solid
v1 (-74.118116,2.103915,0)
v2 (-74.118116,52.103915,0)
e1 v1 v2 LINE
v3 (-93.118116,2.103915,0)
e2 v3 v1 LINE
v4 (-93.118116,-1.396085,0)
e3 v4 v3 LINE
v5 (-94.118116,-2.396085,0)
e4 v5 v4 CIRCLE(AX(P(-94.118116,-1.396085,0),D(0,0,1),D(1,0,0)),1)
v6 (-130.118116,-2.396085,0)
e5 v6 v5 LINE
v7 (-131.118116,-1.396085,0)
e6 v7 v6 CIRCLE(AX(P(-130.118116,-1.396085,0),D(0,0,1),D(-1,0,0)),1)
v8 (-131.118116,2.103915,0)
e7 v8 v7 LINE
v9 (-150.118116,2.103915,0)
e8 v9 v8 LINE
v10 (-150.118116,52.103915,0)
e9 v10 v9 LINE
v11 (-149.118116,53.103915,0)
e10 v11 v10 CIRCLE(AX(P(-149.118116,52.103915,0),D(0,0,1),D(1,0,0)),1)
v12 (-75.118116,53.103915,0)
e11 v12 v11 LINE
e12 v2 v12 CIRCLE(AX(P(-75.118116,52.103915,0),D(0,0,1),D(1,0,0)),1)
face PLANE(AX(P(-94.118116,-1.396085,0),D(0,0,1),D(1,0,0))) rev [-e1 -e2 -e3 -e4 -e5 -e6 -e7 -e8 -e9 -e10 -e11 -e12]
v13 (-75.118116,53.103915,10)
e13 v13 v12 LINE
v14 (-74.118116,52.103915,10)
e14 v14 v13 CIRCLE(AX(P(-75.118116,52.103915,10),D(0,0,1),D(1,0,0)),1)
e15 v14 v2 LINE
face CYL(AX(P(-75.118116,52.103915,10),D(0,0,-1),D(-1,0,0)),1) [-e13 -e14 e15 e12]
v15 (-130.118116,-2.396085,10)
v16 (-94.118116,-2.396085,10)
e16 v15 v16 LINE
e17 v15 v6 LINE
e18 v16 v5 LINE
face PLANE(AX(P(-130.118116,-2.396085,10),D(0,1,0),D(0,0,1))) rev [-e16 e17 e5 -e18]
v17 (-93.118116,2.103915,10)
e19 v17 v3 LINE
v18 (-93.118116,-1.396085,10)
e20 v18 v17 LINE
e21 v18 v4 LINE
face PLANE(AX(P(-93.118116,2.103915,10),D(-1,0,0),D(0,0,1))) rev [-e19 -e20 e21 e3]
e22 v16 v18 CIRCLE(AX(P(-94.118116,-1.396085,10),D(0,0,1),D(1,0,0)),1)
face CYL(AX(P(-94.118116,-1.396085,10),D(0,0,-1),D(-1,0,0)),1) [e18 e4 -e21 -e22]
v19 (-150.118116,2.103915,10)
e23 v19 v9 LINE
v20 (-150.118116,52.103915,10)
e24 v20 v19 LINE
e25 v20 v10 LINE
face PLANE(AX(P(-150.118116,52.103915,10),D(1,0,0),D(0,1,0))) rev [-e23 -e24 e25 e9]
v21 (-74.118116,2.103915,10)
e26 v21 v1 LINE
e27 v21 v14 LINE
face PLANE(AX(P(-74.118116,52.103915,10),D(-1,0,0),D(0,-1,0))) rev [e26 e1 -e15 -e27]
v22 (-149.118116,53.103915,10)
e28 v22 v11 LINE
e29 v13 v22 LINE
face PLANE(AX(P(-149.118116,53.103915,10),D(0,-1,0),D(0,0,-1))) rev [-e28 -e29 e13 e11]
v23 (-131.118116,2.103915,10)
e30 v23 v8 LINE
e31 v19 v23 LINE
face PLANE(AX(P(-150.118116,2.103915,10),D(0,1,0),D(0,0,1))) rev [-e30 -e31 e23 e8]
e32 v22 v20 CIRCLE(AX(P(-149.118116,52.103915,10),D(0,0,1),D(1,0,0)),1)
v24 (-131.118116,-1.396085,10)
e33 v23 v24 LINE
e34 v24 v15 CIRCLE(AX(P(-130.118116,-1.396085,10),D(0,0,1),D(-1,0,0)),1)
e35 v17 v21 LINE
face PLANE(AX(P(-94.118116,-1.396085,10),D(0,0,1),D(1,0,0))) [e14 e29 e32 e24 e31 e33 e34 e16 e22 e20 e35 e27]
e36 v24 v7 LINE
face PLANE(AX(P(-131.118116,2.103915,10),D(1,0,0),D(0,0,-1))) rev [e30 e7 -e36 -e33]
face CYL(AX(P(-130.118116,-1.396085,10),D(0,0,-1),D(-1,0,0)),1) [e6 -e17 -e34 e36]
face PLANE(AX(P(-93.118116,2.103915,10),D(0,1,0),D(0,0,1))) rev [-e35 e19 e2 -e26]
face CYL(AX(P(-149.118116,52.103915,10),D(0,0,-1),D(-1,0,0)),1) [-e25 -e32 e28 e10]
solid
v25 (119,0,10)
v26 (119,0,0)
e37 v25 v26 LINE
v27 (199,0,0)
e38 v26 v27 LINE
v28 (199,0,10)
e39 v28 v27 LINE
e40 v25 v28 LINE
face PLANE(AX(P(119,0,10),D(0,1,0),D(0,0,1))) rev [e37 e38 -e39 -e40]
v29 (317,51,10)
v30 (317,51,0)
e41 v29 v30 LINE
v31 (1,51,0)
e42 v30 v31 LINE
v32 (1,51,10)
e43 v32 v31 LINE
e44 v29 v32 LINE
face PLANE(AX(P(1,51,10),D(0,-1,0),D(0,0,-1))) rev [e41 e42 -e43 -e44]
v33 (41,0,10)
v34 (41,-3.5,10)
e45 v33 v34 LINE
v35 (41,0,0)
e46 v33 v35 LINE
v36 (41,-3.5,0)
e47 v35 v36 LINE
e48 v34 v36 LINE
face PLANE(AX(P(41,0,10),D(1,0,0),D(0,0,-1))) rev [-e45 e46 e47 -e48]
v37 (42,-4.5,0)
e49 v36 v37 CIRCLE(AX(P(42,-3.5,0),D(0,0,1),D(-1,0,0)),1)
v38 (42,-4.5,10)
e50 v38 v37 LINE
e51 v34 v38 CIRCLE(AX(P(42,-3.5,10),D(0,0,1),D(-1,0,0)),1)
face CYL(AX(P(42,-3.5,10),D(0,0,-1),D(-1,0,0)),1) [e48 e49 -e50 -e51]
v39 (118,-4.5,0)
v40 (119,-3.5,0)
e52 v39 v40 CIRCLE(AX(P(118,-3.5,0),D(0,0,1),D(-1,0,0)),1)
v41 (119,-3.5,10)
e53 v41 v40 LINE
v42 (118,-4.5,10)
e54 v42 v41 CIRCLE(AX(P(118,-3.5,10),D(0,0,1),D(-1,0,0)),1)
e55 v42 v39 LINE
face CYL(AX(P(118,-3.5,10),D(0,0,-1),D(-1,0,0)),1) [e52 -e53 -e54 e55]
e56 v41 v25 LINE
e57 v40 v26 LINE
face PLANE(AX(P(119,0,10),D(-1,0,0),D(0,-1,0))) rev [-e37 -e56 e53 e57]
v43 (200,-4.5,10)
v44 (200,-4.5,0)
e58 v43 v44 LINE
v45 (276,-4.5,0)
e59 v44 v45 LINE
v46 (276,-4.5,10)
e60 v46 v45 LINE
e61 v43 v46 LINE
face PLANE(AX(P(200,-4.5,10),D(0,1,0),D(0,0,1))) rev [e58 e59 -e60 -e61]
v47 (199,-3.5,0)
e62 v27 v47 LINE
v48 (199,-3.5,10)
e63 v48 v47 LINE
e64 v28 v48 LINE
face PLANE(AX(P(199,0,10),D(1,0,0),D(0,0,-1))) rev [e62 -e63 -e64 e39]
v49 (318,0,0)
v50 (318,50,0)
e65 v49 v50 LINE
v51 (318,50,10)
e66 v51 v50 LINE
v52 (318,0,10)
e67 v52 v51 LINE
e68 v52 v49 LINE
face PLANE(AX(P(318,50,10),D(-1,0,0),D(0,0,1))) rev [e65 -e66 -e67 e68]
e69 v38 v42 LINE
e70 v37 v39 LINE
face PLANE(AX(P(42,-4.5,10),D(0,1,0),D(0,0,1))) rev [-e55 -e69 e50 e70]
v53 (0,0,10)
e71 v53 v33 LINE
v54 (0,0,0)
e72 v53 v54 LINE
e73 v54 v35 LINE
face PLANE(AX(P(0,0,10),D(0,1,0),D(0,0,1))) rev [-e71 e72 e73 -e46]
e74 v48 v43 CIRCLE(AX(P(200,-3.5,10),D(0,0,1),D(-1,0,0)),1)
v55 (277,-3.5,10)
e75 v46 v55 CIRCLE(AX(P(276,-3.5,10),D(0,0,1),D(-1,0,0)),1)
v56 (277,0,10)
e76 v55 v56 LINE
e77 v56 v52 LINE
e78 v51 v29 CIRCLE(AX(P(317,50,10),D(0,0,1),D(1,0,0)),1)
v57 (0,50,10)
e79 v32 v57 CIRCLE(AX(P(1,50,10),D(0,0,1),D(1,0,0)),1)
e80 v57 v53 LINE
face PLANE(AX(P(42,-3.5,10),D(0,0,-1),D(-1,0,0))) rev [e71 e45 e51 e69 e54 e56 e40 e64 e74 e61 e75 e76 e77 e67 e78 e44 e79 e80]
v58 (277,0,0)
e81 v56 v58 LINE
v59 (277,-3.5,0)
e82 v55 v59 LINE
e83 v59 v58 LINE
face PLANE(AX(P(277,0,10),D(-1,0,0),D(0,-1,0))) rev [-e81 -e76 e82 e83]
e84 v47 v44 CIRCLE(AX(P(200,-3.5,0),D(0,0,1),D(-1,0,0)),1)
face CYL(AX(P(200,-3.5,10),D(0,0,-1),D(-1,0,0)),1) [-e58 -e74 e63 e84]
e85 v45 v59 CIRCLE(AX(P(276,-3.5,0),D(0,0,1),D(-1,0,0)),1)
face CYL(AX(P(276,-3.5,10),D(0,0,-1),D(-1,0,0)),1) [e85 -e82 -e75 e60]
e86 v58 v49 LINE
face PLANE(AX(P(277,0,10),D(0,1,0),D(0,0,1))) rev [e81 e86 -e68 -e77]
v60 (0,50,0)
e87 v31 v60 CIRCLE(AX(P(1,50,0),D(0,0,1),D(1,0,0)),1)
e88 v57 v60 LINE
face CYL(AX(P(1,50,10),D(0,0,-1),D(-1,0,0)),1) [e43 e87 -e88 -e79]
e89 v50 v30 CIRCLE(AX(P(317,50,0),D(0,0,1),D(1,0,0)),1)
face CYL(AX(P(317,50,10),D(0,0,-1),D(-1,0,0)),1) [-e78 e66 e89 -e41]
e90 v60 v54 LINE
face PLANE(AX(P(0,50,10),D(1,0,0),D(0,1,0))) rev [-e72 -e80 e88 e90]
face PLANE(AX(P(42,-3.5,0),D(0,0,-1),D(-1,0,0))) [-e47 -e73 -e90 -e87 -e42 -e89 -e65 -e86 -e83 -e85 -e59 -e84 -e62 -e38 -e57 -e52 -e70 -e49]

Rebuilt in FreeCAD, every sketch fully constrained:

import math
import FreeCAD as App
import Part
import Sketcher

V = App.Vector

doc = App.newDocument("Part")
params = doc.addObject("Spreadsheet::Sheet", "Params")
for row, (alias, value) in enumerate([
    ("sketch1_radius", "1 mm"),
    ("sketch1_width", "19 mm"),
    ("sketch1_width2", "74 mm"),
    ("sketch1_height", "50 mm"),
    ("sketch1_height2", "3.5 mm"),
    ("pad1_length", "10 mm"),
    ("sketch2_radius", "1 mm"),
    ("sketch2_width", "80 mm"),
    ("sketch2_width2", "76 mm"),
    ("sketch2_width3", "41 mm"),
    ("sketch2_height", "50 mm"),
    ("pad2_length", "10 mm"),
], start=1):
    params.set(f"A{row}", alias)
    params.set(f"B{row}", "=" + value)
    params.setAlias(f"B{row}", alias)

body = doc.addObject("PartDesign::Body", "Body")

sketch1 = body.newObject("Sketcher::SketchObject", "Sketch")
sketch1.AttachmentSupport = (doc.getObject("XY_Plane"), [""])
sketch1.MapMode = "FlatFace"
sketch1.addGeometry([
    Part.LineSegment(V(-93.1, 2.1, 0), V(-74.1, 2.1, 0)),
    Part.LineSegment(V(-74.1, 2.1, 0), V(-74.1, 52.1, 0)),
    Part.ArcOfCircle(Part.Circle(V(-75.1, 52.1, 0), V(0, 0, 1), 1), math.radians(0), math.radians(90)),
    Part.LineSegment(V(-75.1, 53.1, 0), V(-149.1, 53.1, 0)),
    Part.ArcOfCircle(Part.Circle(V(-149.1, 52.1, 0), V(0, 0, 1), 1), math.radians(90), math.radians(180)),
    Part.LineSegment(V(-150.1, 52.1, 0), V(-150.1, 2.1, 0)),
    Part.LineSegment(V(-150.1, 2.1, 0), V(-131.1, 2.1, 0)),
    Part.LineSegment(V(-131.1, 2.1, 0), V(-131.1, -1.4, 0)),
    Part.ArcOfCircle(Part.Circle(V(-130.1, -1.4, 0), V(0, 0, 1), 1), math.radians(-180), math.radians(-90)),
    Part.LineSegment(V(-130.1, -2.4, 0), V(-94.1, -2.4, 0)),
    Part.ArcOfCircle(Part.Circle(V(-94.1, -1.4, 0), V(0, 0, 1), 1), math.radians(-90), math.radians(0)),
    Part.LineSegment(V(-93.1, -1.4, 0), V(-93.1, 2.1, 0)),
], False)
sketch1.addConstraint([
    Sketcher.Constraint("Coincident", 0, 2, 1, 1),
    Sketcher.Constraint("Tangent", 1, 2, 2, 1),
    Sketcher.Constraint("Tangent", 2, 2, 3, 1),
    Sketcher.Constraint("Tangent", 3, 2, 4, 1),
    Sketcher.Constraint("Tangent", 4, 2, 5, 1),
    Sketcher.Constraint("Coincident", 5, 2, 6, 1),
    Sketcher.Constraint("Coincident", 6, 2, 7, 1),
    Sketcher.Constraint("Tangent", 7, 2, 8, 1),
    Sketcher.Constraint("Tangent", 8, 2, 9, 1),
    Sketcher.Constraint("Tangent", 9, 2, 10, 1),
    Sketcher.Constraint("Tangent", 10, 2, 11, 1),
    Sketcher.Constraint("Coincident", 11, 2, 0, 1),
    Sketcher.Constraint("Horizontal", 0),
    Sketcher.Constraint("Vertical", 1),
    Sketcher.Constraint("Horizontal", 3),
    Sketcher.Constraint("Vertical", 5),
    Sketcher.Constraint("Horizontal", 6),
    Sketcher.Constraint("Vertical", 7),
    Sketcher.Constraint("Horizontal", 9),
    Sketcher.Constraint("Vertical", 11),
    Sketcher.Constraint("Equal", 2, 4),
    Sketcher.Constraint("Equal", 4, 8),
    Sketcher.Constraint("Equal", 8, 10),
    Sketcher.Constraint("Horizontal", 0, 2, 5, 2),
    Sketcher.Constraint("Equal", 0, 6),
    Sketcher.Constraint("Radius", 2, 1.0),
    Sketcher.Constraint("DistanceX", 0, 1, 0, 2, 19.0),
    Sketcher.Constraint("DistanceX", 3, 2, 3, 1, 74.0),
    Sketcher.Constraint("DistanceY", 1, 1, 1, 2, 50.0),
    Sketcher.Constraint("DistanceY", 7, 2, 7, 1, 3.5),
    Sketcher.Constraint("DistanceX", 2, 3, -1, 1, 75.118116),
    Sketcher.Constraint("DistanceY", -1, 1, 2, 3, 52.103915),
])
sketch1.setExpression("Constraints[25]", "Params.sketch1_radius")
sketch1.setExpression("Constraints[26]", "Params.sketch1_width")
sketch1.setExpression("Constraints[27]", "Params.sketch1_width2")
sketch1.setExpression("Constraints[28]", "Params.sketch1_height")
sketch1.setExpression("Constraints[29]", "Params.sketch1_height2")
pad1 = body.newObject("PartDesign::Pad", "Pad")
pad1.Profile = sketch1
pad1.setExpression("Length", "Params.pad1_length")
body2 = doc.addObject("PartDesign::Body", "Body001")

sketch2 = body2.newObject("Sketcher::SketchObject", "Sketch001")
sketch2.AttachmentSupport = (doc.getObject("XY_Plane001"), [""])
sketch2.MapMode = "FlatFace"
sketch2.addGeometry([
    Part.LineSegment(V(119, 0, 0), V(199, 0, 0)),
    Part.LineSegment(V(199, 0, 0), V(199, -3.5, 0)),
    Part.ArcOfCircle(Part.Circle(V(200, -3.5, 0), V(0, 0, 1), 1), math.radians(-180), math.radians(-90)),
    Part.LineSegment(V(200, -4.5, 0), V(276, -4.5, 0)),
    Part.ArcOfCircle(Part.Circle(V(276, -3.5, 0), V(0, 0, 1), 1), math.radians(-90), math.radians(0)),
    Part.LineSegment(V(277, -3.5, 0), V(277, 0, 0)),
    Part.LineSegment(V(277, 0, 0), V(318, 0, 0)),
    Part.LineSegment(V(318, 0, 0), V(318, 50, 0)),
    Part.ArcOfCircle(Part.Circle(V(317, 50, 0), V(0, 0, 1), 1), math.radians(0), math.radians(90)),
    Part.LineSegment(V(317, 51, 0), V(1, 51, 0)),
    Part.ArcOfCircle(Part.Circle(V(1, 50, 0), V(0, 0, 1), 1), math.radians(90), math.radians(180)),
    Part.LineSegment(V(0, 50, 0), V(0, 0, 0)),
    Part.LineSegment(V(0, 0, 0), V(41, 0, 0)),
    Part.LineSegment(V(41, 0, 0), V(41, -3.5, 0)),
    Part.ArcOfCircle(Part.Circle(V(42, -3.5, 0), V(0, 0, 1), 1), math.radians(-180), math.radians(-90)),
    Part.LineSegment(V(42, -4.5, 0), V(118, -4.5, 0)),
    Part.ArcOfCircle(Part.Circle(V(118, -3.5, 0), V(0, 0, 1), 1), math.radians(-90), math.radians(0)),
    Part.LineSegment(V(119, -3.5, 0), V(119, 0, 0)),
], False)
sketch2.addConstraint([
    Sketcher.Constraint("Coincident", 0, 2, 1, 1),
    Sketcher.Constraint("Tangent", 1, 2, 2, 1),
    Sketcher.Constraint("Tangent", 2, 2, 3, 1),
    Sketcher.Constraint("Tangent", 3, 2, 4, 1),
    Sketcher.Constraint("Tangent", 4, 2, 5, 1),
    Sketcher.Constraint("Coincident", 5, 2, 6, 1),
    Sketcher.Constraint("Coincident", 6, 2, 7, 1),
    Sketcher.Constraint("Tangent", 7, 2, 8, 1),
    Sketcher.Constraint("Tangent", 8, 2, 9, 1),
    Sketcher.Constraint("Tangent", 9, 2, 10, 1),
    Sketcher.Constraint("Tangent", 10, 2, 11, 1),
    Sketcher.Constraint("Coincident", 11, 2, 12, 1),
    Sketcher.Constraint("Coincident", 12, 2, 13, 1),
    Sketcher.Constraint("Tangent", 13, 2, 14, 1),
    Sketcher.Constraint("Tangent", 14, 2, 15, 1),
    Sketcher.Constraint("Tangent", 15, 2, 16, 1),
    Sketcher.Constraint("Tangent", 16, 2, 17, 1),
    Sketcher.Constraint("Coincident", 17, 2, 0, 1),
    Sketcher.Constraint("Horizontal", 0),
    Sketcher.Constraint("Vertical", 1),
    Sketcher.Constraint("Horizontal", 3),
    Sketcher.Constraint("Vertical", 5),
    Sketcher.Constraint("Horizontal", 6),
    Sketcher.Constraint("Vertical", 7),
    Sketcher.Constraint("Horizontal", 9),
    Sketcher.Constraint("Vertical", 11),
    Sketcher.Constraint("Horizontal", 12),
    Sketcher.Constraint("Vertical", 13),
    Sketcher.Constraint("Horizontal", 15),
    Sketcher.Constraint("Vertical", 17),
    Sketcher.Constraint("Coincident", 11, 2, -1, 1),
    Sketcher.Constraint("Equal", 2, 4),
    Sketcher.Constraint("Equal", 4, 8),
    Sketcher.Constraint("Equal", 8, 10),
    Sketcher.Constraint("Equal", 10, 14),
    Sketcher.Constraint("Equal", 14, 16),
    Sketcher.Constraint("PointOnObject", 0, 2, -1),
    Sketcher.Constraint("PointOnObject", 5, 2, -1),
    Sketcher.Constraint("Horizontal", 4, 3, 14, 3),
    Sketcher.Constraint("Equal", 6, 12),
    Sketcher.Constraint("Equal", 3, 15),
    Sketcher.Constraint("Radius", 2, 1.0),
    Sketcher.Constraint("DistanceX", 0, 1, 0, 2, 80.0),
    Sketcher.Constraint("DistanceX", 3, 1, 3, 2, 76.0),
    Sketcher.Constraint("DistanceX", 6, 1, 6, 2, 41.0),
    Sketcher.Constraint("DistanceY", 7, 1, 7, 2, 50.0),
    Sketcher.Constraint("DistanceY", 1, 2, 1, 1, 3.5),
])
sketch2.setExpression("Constraints[41]", "Params.sketch2_radius")
sketch2.setExpression("Constraints[42]", "Params.sketch2_width")
sketch2.setExpression("Constraints[43]", "Params.sketch2_width2")
sketch2.setExpression("Constraints[44]", "Params.sketch2_width3")
sketch2.setExpression("Constraints[45]", "Params.sketch2_height")
pad2 = body2.newObject("PartDesign::Pad", "Pad001")
pad2.Profile = sketch2
pad2.setExpression("Length", "Params.pad2_length")

doc.recompute()
